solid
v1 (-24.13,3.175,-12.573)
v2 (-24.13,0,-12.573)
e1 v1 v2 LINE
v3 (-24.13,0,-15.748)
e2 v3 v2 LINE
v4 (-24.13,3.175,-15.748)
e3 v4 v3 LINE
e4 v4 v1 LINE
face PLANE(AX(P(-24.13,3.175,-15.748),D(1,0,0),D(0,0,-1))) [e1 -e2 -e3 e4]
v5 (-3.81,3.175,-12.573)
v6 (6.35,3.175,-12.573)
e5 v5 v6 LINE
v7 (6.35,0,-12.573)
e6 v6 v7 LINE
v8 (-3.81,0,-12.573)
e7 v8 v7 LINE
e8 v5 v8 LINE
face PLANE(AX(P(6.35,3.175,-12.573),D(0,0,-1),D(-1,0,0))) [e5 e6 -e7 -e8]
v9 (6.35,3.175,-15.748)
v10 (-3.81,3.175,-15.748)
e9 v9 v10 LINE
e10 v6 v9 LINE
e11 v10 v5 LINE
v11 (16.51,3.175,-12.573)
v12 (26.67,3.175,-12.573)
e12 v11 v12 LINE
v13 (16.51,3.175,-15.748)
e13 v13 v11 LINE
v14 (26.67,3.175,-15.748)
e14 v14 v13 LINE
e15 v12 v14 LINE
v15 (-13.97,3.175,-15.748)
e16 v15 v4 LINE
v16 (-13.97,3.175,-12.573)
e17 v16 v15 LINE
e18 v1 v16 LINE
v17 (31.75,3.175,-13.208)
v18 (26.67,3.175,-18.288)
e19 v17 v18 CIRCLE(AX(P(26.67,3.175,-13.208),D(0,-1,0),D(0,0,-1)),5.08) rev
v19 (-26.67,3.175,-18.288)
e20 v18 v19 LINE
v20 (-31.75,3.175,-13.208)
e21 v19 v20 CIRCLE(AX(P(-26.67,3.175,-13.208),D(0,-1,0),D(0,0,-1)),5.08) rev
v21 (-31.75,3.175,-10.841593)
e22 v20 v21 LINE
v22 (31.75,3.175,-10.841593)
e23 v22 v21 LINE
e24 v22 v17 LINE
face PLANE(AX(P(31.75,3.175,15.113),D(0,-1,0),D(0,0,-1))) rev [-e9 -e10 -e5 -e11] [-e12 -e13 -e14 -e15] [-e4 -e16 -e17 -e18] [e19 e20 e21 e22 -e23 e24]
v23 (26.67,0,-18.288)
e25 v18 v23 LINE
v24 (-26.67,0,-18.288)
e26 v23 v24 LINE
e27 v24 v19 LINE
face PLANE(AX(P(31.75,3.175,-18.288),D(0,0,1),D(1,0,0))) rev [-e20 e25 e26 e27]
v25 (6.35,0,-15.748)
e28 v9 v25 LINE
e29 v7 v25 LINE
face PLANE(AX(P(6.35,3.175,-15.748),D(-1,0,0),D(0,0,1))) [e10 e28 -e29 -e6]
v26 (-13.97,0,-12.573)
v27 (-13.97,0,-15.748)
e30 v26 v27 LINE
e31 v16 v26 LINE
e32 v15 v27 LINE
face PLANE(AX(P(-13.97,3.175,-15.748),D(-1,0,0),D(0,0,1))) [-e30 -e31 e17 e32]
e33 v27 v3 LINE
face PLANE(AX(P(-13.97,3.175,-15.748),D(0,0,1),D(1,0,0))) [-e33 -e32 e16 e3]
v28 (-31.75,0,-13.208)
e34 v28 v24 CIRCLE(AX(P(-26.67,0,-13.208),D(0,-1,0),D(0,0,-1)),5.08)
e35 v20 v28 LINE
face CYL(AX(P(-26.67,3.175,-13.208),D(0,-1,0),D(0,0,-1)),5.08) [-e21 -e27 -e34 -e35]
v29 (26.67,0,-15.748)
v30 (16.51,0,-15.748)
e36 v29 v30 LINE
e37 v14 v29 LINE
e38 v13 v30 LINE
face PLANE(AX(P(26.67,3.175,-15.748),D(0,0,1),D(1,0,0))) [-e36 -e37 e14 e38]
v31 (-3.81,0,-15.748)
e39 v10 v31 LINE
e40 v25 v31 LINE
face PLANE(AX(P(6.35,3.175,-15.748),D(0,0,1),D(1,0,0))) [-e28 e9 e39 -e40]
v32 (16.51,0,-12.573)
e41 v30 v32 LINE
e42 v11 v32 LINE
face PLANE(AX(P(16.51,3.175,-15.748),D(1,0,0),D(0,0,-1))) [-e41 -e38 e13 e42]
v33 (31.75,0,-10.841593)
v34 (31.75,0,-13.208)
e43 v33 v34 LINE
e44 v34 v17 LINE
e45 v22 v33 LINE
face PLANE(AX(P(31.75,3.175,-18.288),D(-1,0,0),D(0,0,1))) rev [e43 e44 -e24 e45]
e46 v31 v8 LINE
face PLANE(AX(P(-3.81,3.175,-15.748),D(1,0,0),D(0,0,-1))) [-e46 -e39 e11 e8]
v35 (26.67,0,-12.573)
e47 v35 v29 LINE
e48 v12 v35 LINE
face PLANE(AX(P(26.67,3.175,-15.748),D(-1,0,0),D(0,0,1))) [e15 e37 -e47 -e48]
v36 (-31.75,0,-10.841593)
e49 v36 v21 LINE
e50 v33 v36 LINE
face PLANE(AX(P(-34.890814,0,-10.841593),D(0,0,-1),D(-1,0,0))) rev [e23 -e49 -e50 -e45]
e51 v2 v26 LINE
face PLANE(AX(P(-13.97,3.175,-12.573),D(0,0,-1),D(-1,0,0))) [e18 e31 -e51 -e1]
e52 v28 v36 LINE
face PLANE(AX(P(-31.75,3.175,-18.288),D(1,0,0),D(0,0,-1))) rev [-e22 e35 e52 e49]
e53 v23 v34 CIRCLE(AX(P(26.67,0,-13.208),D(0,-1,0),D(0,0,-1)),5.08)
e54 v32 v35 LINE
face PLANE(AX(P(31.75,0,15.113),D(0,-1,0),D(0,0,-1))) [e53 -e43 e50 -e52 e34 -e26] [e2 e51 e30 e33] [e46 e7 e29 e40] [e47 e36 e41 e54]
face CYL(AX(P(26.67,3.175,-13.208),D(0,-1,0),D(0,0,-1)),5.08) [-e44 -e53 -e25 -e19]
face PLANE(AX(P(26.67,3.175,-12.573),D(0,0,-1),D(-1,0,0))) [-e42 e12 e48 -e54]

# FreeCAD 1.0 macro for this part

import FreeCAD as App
import Part
import Sketcher
Q = App.Units.Quantity


def edges_at(feature, points):
    """Names of the edges that pass closest to the given points."""
    edges = feature.Shape.Edges
    near = lambda p: min(range(len(edges)), key=lambda i: edges[i].distToShape(Part.Vertex(*p))[0])
    return sorted({f"Edge{near(p) + 1}" for p in points})


def add_polygon(sketch, points):
    """Adds a closed chain of lines whose ends are joined by coincident constraints."""
    first, n = sketch.GeometryCount, len(points)
    for a, b in zip(points, points[1:] + points[:1]):
        sketch.addGeometry(Part.LineSegment(App.Vector(*a, 0), App.Vector(*b, 0)), False)
    for i in range(n):
        sketch.addConstraint(Sketcher.Constraint("Coincident", first + i, 2, first + (i + 1) % n, 1))

doc = App.newDocument("Part")
params = doc.addObject("Spreadsheet::Sheet", "Params")
for row, (alias, value) in enumerate([
    ("sketch1_width", "2.5 in"),
    ("sketch1_width2", "1.6 in"),
    ("sketch1_width3", "0.4 in"),
    ("sketch1_height", "0.79 in"),
    ("sketch1_height2", "1.315 in"),
    ("pad1_length", "0.125 in"),
    ("sketch2_diameter", "0.175 in"),
    ("sketch3_height", "0.07 in"),
    ("sketch3_width", "0.275 in"),
    ("fillet_radius", "0.2 in"),
], start=1):
    params.set(f"A{row}", alias)
    params.set(f"B{row}", "=" + value)
    params.setAlias(f"B{row}", alias)

body = doc.addObject("PartDesign::Body", "Body")

sketch1 = body.newObject("Sketcher::SketchObject", "Sketch")
sketch1.AttachmentSupport = (doc.getObject("XZ_Plane"), [""])
sketch1.MapMode = "FlatFace"
add_polygon(sketch1, [(-31.75, -18.288), (-31.75, 15.113), (31.75, 15.113), (31.75, -18.288)])
add_polygon(sketch1, [(20.32, 10.033), (-20.32, 10.033), (-20.32, -10.033), (20.32, -10.033)])
add_polygon(sketch1, [(-13.97, -12.573), (-24.13, -12.573), (-24.13, -15.748), (-13.97, -15.748)])
add_polygon(sketch1, [(6.35, -12.573), (-3.81, -12.573), (-3.81, -15.748), (6.35, -15.748)])
add_polygon(sketch1, [(26.67, -12.573), (16.51, -12.573), (16.51, -15.748), (26.67, -15.748)])
sketch1.addConstraint(Sketcher.Constraint("Vertical", 0))
sketch1.addConstraint(Sketcher.Constraint("Horizontal", 1))
sketch1.addConstraint(Sketcher.Constraint("Vertical", 2))
sketch1.addConstraint(Sketcher.Constraint("Horizontal", 3))
sketch1.addConstraint(Sketcher.Constraint("Horizontal", 4))
sketch1.addConstraint(Sketcher.Constraint("Vertical", 5))
sketch1.addConstraint(Sketcher.Constraint("Horizontal", 6))
sketch1.addConstraint(Sketcher.Constraint("Vertical", 7))
sketch1.addConstraint(Sketcher.Constraint("Horizontal", 8))
sketch1.addConstraint(Sketcher.Constraint("Vertical", 9))
sketch1.addConstraint(Sketcher.Constraint("Horizontal", 10))
sketch1.addConstraint(Sketcher.Constraint("Vertical", 11))
sketch1.addConstraint(Sketcher.Constraint("Horizontal", 12))
sketch1.addConstraint(Sketcher.Constraint("Vertical", 13))
sketch1.addConstraint(Sketcher.Constraint("Horizontal", 14))
sketch1.addConstraint(Sketcher.Constraint("Vertical", 15))
sketch1.addConstraint(Sketcher.Constraint("Horizontal", 16))
sketch1.addConstraint(Sketcher.Constraint("Vertical", 17))
sketch1.addConstraint(Sketcher.Constraint("Horizontal", 18))
sketch1.addConstraint(Sketcher.Constraint("Vertical", 19))
sketch1.addConstraint(Sketcher.Constraint("Symmetric", 4, 2, 6, 2, -1, 1))
sketch1.addConstraint(Sketcher.Constraint("Horizontal", 11, 2, 12, 2))
sketch1.addConstraint(Sketcher.Constraint("Horizontal", 10, 2, 13, 2))
sketch1.addConstraint(Sketcher.Constraint("Horizontal", 15, 2, 16, 2))
sketch1.addConstraint(Sketcher.Constraint("Horizontal", 14, 2, 17, 2))
sketch1.addConstraint(Sketcher.Constraint("Equal", 10, 12))
sketch1.addConstraint(Sketcher.Constraint("Equal", 14, 16))
sketch1.addConstraint(Sketcher.Constraint("DistanceX", 1, 1, 1, 2, Q("2.5 in")))
sketch1.addConstraint(Sketcher.Constraint("DistanceX", 4, 2, 4, 1, Q("1.6 in")))
sketch1.addConstraint(Sketcher.Constraint("DistanceX", 8, 2, 8, 1, Q("0.4 in")))
sketch1.addConstraint(Sketcher.Constraint("DistanceY", 5, 2, 5, 1, Q("0.79 in")))
sketch1.addConstraint(Sketcher.Constraint("DistanceY", 4, 2, 0, 2, Q("0.2 in")))
sketch1.addConstraint(Sketcher.Constraint("DistanceY", 8, 2, 5, 2, Q("0.1 in")))
sketch1.addConstraint(Sketcher.Constraint("DistanceX", 3, 2, 8, 2, Q("0.3 in")))
sketch1.addConstraint(Sketcher.Constraint("DistanceY", 3, 2, 9, 2, Q("0.1 in")))
sketch1.addConstraint(Sketcher.Constraint("DistanceX", 11, 2, 12, 2, Q("0.4 in")))
sketch1.addConstraint(Sketcher.Constraint("DistanceX", 15, 2, 16, 2, Q("0.4 in")))
sketch1.addConstraint(Sketcher.Constraint("DistanceY", 0, 1, 0, 2, Q("1.315 in")))
sketch1.addConstraint(Sketcher.Constraint("DistanceX", 0, 2, -1, 1, Q("1.25 in")))
sketch1.setExpression("Constraints[47]", "Params.sketch1_width")
sketch1.setExpression("Constraints[48]", "Params.sketch1_width2")
sketch1.setExpression("Constraints[49]", "Params.sketch1_width3")
sketch1.setExpression("Constraints[50]", "Params.sketch1_height")
sketch1.setExpression("Constraints[57]", "Params.sketch1_height2")
pad1 = body.newObject("PartDesign::Pad", "Pad")
pad1.Profile = sketch1
pad1.setExpression("Length", "Params.pad1_length")
pad1.Reversed = True

sketch2 = body.newObject("Sketcher::SketchObject", "Sketch001")
sketch2.AttachmentSupport = (doc.getObject("XZ_Plane"), [""])
sketch2.MapMode = "FlatFace"
sketch2.AttachmentOffset = App.Placement(App.Vector(0, 0, -0.125 * 25.4), App.Rotation())
sketch2.addGeometry(Part.Circle(App.Vector(-24.992246, -4.9657, 0), App.Vector(0, 0, 1), 2.2225), False)
sketch2.addGeometry(Part.Circle(App.Vector(-24.992246, 4.9657, 0), App.Vector(0, 0, 1), 2.2225), False)
sketch2.addGeometry(Part.Circle(App.Vector(24.992246, 4.9657, 0), App.Vector(0, 0, 1), 2.2225), False)
sketch2.addGeometry(Part.Circle(App.Vector(24.992246, -4.9657, 0), App.Vector(0, 0, 1), 2.2225), False)
sketch2.addConstraint(Sketcher.Constraint("Equal", 0, 1))
sketch2.addConstraint(Sketcher.Constraint("Equal", 1, 2))
sketch2.addConstraint(Sketcher.Constraint("Equal", 2, 3))
sketch2.addConstraint(Sketcher.Constraint("Symmetric", 0, 3, 2, 3, -1, 1))
sketch2.addConstraint(Sketcher.Constraint("Symmetric", 1, 3, 3, 3, -1, 1))
sketch2.addConstraint(Sketcher.Constraint("Symmetric", 1, 3, 2, 3, -2))
sketch2.addConstraint(Sketcher.Constraint("Diameter", 0, Q("0.175 in")))
sketch2.addConstraint(Sketcher.Constraint("DistanceY", 0, 3, 1, 3, Q("0.391 in")))
sketch2.addConstraint(Sketcher.Constraint("DistanceX", 0, 3, -1, 1, Q("24.992246 mm")))
sketch2.setExpression("Constraints[6]", "Params.sketch2_diameter")
pocket1 = body.newObject("PartDesign::Pocket", "Pocket")
pocket1.Profile = sketch2
pocket1.Type = "ThroughAll"
pocket1.Reversed = True

sketch3 = body.newObject("Sketcher::SketchObject", "Sketch002")
sketch3.AttachmentSupport = (doc.getObject("XZ_Plane"), [""])
sketch3.MapMode = "FlatFace"
sketch3.AttachmentOffset = App.Placement(App.Vector(0, 0, -0.125 * 25.4), App.Rotation())
add_polygon(sketch3, [(-20.32, -0.889), (-27.305, -0.889), (-27.305, 0.889), (-20.32, 0.889)])
add_polygon(sketch3, [(20.32, 0.889), (27.305, 0.889), (27.305, -0.889), (20.32, -0.889)])
sketch3.addConstraint(Sketcher.Constraint("Horizontal", 0))
sketch3.addConstraint(Sketcher.Constraint("Vertical", 1))
sketch3.addConstraint(Sketcher.Constraint("Horizontal", 2))
sketch3.addConstraint(Sketcher.Constraint("Vertical", 3))
sketch3.addConstraint(Sketcher.Constraint("Horizontal", 4))
sketch3.addConstraint(Sketcher.Constraint("Vertical", 5))
sketch3.addConstraint(Sketcher.Constraint("Horizontal", 6))
sketch3.addConstraint(Sketcher.Constraint("Vertical", 7))
sketch3.addConstraint(Sketcher.Constraint("Symmetric", 0, 2, 4, 2, -1, 1))
sketch3.addConstraint(Sketcher.Constraint("Symmetric", 2, 2, 6, 2, -1, 1))
sketch3.addConstraint(Sketcher.Constraint("Horizontal", 2, 2, 4, 2))
sketch3.addConstraint(Sketcher.Constraint("DistanceY", 1, 1, 1, 2, Q("0.07 in")))
sketch3.addConstraint(Sketcher.Constraint("DistanceX", 2, 2, -1, 1, Q("0.8 in")))
sketch3.addConstraint(Sketcher.Constraint("DistanceX", 0, 2, 0, 1, Q("0.275 in")))
sketch3.setExpression("Constraints[19]", "Params.sketch3_height")
sketch3.setExpression("Constraints[21]", "Params.sketch3_width")
pocket2 = body.newObject("PartDesign::Pocket", "Pocket001")
pocket2.Profile = sketch3
pocket2.Type = "ThroughAll"
pocket2.Reversed = True
doc.recompute()

fillet = body.newObject("PartDesign::Fillet", "Fillet")
fillet.Base = (pocket2, edges_at(pocket2, [
    (31.75, 1.587, 15.113),
    (-31.75, 1.587, 15.113),
    (-31.75, 1.587, -18.288),
    (31.75, 1.587, -18.288),
]))
fillet.setExpression("Radius", "Params.fillet_radius")

sketch4 = body.newObject("Sketcher::SketchObject", "Sketch003")
sketch4.AttachmentSupport = (doc.getObject("XZ_Plane"), [""])
sketch4.MapMode = "FlatFace"
sketch4.AttachmentOffset = App.Placement(App.Vector(0, 0, -0.125 * 25.4), App.Rotation())
add_polygon(sketch4, [(-34.890814, -10.841593), (-34.890814, 18.479159), (34.631438, 18.479159), (34.631438, -10.841593)])
sketch4.addConstraint(Sketcher.Constraint("Vertical", 0))
sketch4.addConstraint(Sketcher.Constraint("Horizontal", 1))
sketch4.addConstraint(Sketcher.Constraint("Vertical", 2))
sketch4.addConstraint(Sketcher.Constraint("Horizontal", 3))
sketch4.addConstraint(Sketcher.Constraint("DistanceX", 1, 1, 1, 2, Q("69.522252 mm")))
sketch4.addConstraint(Sketcher.Constraint("DistanceY", 0, 1, 0, 2, Q("29.320752 mm")))
sketch4.addConstraint(Sketcher.Constraint("DistanceY", -1, 1, 0, 2, Q("18.479159 mm")))
sketch4.addConstraint(Sketcher.Constraint("DistanceX", 0, 2, -1, 1, Q("34.890814 mm")))
pocket3 = body.newObject("PartDesign::Pocket", "Pocket002")
pocket3.Profile = sketch4
pocket3.Type = "ThroughAll"
pocket3.Reversed = True

doc.recompute()
